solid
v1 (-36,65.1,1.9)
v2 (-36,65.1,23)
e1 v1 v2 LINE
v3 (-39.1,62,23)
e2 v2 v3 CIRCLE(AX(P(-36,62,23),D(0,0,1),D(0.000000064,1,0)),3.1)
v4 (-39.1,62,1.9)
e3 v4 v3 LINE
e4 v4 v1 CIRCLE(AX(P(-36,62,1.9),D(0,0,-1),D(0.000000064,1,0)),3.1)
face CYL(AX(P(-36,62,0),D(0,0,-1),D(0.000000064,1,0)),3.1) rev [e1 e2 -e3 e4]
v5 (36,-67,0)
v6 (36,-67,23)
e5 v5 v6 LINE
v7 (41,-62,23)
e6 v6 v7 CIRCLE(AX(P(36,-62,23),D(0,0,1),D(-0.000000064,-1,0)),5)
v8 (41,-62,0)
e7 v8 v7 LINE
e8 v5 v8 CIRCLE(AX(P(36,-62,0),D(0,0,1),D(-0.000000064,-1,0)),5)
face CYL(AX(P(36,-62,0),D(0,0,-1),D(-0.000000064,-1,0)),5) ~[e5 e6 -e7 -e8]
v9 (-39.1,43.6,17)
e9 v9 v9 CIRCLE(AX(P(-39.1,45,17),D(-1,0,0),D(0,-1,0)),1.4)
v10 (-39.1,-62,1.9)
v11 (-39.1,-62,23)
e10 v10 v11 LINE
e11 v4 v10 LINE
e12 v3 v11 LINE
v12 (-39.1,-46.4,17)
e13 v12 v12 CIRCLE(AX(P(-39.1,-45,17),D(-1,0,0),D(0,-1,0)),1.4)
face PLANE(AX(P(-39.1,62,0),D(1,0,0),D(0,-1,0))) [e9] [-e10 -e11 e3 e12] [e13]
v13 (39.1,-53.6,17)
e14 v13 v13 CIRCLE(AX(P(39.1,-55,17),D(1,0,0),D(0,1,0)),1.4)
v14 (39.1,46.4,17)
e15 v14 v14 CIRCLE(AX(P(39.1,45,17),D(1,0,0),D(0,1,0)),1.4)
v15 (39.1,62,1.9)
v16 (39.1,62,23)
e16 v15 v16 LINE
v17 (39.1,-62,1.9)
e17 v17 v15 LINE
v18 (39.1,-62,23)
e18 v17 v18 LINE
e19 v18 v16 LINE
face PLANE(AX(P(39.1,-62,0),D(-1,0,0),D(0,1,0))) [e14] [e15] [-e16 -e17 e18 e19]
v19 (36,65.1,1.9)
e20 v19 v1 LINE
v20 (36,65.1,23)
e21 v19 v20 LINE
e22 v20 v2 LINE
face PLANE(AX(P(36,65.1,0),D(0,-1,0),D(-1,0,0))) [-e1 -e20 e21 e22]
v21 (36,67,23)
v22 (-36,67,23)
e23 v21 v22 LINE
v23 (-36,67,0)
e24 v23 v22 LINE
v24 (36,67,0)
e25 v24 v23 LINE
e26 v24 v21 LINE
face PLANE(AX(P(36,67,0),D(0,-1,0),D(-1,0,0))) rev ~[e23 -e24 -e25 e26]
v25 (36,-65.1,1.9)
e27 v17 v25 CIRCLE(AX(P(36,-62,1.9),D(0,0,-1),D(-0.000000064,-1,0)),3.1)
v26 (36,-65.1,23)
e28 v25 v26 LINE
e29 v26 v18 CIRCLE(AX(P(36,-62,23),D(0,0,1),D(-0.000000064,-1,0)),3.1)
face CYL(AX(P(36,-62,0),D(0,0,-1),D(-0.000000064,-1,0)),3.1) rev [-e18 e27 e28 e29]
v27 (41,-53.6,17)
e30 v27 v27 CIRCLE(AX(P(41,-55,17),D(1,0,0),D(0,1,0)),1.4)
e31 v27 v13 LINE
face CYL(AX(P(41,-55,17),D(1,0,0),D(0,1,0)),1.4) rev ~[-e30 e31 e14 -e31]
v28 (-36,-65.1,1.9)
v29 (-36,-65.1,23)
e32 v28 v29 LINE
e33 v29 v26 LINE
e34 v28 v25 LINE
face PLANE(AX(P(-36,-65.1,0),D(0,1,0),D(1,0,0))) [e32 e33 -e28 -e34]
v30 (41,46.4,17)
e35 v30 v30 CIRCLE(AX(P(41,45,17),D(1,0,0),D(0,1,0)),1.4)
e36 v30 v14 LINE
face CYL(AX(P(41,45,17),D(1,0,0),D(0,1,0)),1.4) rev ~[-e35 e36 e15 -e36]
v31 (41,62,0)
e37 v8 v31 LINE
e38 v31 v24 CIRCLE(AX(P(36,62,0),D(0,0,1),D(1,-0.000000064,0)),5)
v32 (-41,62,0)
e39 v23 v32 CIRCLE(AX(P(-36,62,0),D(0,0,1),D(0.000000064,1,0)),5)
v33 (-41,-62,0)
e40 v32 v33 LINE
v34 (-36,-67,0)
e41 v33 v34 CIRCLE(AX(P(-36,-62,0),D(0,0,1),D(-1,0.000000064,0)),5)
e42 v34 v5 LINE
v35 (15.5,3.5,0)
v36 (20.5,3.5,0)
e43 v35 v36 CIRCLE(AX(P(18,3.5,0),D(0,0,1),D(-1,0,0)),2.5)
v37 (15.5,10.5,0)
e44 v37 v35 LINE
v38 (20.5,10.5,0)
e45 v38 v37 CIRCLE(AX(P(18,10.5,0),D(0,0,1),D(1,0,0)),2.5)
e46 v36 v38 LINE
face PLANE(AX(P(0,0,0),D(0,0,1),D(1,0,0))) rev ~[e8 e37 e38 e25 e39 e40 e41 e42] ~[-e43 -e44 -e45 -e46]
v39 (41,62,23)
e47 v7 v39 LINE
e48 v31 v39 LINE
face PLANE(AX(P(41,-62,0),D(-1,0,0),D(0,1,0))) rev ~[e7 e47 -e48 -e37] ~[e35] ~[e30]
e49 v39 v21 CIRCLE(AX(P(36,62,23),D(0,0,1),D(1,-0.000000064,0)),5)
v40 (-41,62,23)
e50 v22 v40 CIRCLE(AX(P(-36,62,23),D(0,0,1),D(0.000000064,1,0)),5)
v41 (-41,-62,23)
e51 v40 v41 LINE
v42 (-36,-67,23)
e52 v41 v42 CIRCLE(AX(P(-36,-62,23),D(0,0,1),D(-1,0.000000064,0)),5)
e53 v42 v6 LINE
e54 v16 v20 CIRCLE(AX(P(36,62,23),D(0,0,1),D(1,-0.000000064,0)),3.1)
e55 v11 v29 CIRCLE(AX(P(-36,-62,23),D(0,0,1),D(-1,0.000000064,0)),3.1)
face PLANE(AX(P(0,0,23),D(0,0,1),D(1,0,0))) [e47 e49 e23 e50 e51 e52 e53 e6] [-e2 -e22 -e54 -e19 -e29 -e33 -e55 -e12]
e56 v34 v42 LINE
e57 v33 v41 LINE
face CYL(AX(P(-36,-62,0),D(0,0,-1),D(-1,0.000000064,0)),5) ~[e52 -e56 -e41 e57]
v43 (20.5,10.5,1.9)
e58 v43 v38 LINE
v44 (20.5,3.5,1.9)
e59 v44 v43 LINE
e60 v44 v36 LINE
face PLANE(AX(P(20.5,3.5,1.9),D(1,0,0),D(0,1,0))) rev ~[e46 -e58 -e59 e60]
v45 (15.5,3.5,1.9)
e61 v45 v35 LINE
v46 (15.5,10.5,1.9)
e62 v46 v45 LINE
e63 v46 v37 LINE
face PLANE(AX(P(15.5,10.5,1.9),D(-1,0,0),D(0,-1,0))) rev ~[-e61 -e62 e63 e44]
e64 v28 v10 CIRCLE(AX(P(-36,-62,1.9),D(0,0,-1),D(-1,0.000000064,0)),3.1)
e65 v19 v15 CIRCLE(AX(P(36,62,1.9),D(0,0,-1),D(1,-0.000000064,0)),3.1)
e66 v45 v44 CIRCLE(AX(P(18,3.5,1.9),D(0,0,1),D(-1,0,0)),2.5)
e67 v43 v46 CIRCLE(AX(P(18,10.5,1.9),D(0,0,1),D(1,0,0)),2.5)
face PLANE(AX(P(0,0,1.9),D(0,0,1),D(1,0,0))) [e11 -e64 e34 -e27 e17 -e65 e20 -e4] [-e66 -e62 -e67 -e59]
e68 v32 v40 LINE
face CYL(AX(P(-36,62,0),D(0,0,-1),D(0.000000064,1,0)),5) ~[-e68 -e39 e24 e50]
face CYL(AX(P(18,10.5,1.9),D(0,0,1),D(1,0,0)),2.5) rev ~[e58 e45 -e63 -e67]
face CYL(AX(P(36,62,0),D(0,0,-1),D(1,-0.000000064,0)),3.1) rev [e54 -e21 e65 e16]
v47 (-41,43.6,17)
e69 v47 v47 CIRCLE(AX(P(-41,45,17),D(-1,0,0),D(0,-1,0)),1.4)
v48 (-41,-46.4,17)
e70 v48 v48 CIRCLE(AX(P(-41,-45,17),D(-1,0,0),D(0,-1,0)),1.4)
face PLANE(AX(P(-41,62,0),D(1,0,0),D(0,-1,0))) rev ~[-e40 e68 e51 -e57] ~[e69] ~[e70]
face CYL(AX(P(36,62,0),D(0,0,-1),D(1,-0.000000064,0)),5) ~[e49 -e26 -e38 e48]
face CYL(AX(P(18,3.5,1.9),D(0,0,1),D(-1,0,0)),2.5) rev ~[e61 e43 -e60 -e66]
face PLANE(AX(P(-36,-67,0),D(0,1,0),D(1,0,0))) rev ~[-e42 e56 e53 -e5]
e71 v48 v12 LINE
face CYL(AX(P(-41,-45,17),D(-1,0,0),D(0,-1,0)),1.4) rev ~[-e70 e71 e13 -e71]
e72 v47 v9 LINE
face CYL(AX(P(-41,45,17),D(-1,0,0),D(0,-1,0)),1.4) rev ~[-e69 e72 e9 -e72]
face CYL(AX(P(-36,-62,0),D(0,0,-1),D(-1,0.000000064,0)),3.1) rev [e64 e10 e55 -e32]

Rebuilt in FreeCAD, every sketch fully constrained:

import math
import FreeCAD as App
import Part
import Sketcher


def faces_at(feature, points):
    """Names of the faces that lie closest to the given points."""
    faces = feature.Shape.Faces
    near = lambda p: min(range(len(faces)), key=lambda i: faces[i].distToShape(Part.Vertex(*p))[0])
    return sorted({f"Face{near(p) + 1}" for p in points})

doc = App.newDocument("Part")
params = doc.addObject("Spreadsheet::Sheet", "Params")
for row, (alias, value) in enumerate([
    ("sketch1_radius", "5 mm"),
    ("sketch1_width", "72 mm"),
    ("sketch1_height", "124 mm"),
    ("pad1_length", "23 mm"),
    ("thickness_wall", "1.9 mm"),
    ("sketch2_radius", "2.5 mm"),
    ("sketch2_height", "7 mm"),
    ("pocket1_length", "2 mm"),
    ("sketch3_diameter", "2.8 mm"),
    ("pocket2_length", "2 mm"),
    ("sketch4_diameter", "2.8 mm"),
    ("pocket3_length", "2 mm"),
], start=1):
    params.set(f"A{row}", alias)
    params.set(f"B{row}", "=" + value)
    params.setAlias(f"B{row}", alias)

body = doc.addObject("PartDesign::Body", "Body")

sketch1 = body.newObject("Sketcher::SketchObject", "Sketch")
sketch1.AttachmentSupport = (doc.getObject("XY_Plane"), [""])
sketch1.MapMode = "FlatFace"
sketch1.addGeometry(Part.LineSegment(App.Vector(-36, -67, 0), App.Vector(36, -67, 0)), False)
sketch1.addGeometry(Part.ArcOfCircle(Part.Circle(App.Vector(36, -62, 0), App.Vector(0, 0, 1), 5), math.radians(-90), math.radians(0)), False)
sketch1.addGeometry(Part.LineSegment(App.Vector(41, -62, 0), App.Vector(41, 62, 0)), False)
sketch1.addGeometry(Part.ArcOfCircle(Part.Circle(App.Vector(36, 62, 0), App.Vector(0, 0, 1), 5), math.radians(0), math.radians(90)), False)
sketch1.addGeometry(Part.LineSegment(App.Vector(36, 67, 0), App.Vector(-36, 67, 0)), False)
sketch1.addGeometry(Part.ArcOfCircle(Part.Circle(App.Vector(-36, 62, 0), App.Vector(0, 0, 1), 5), math.radians(90), math.radians(180)), False)
sketch1.addGeometry(Part.LineSegment(App.Vector(-41, 62, 0), App.Vector(-41, -62, 0)), False)
sketch1.addGeometry(Part.ArcOfCircle(Part.Circle(App.Vector(-36, -62, 0), App.Vector(0, 0, 1), 5), math.radians(180), math.radians(270)), False)
sketch1.addConstraint(Sketcher.Constraint("Tangent", 0, 2, 1, 1))
sketch1.addConstraint(Sketcher.Constraint("Tangent", 1, 2, 2, 1))
sketch1.addConstraint(Sketcher.Constraint("Tangent", 2, 2, 3, 1))
sketch1.addConstraint(Sketcher.Constraint("Tangent", 3, 2, 4, 1))
sketch1.addConstraint(Sketcher.Constraint("Tangent", 4, 2, 5, 1))
sketch1.addConstraint(Sketcher.Constraint("Tangent", 5, 2, 6, 1))
sketch1.addConstraint(Sketcher.Constraint("Tangent", 6, 2, 7, 1))
sketch1.addConstraint(Sketcher.Constraint("Tangent", 7, 2, 0, 1))
sketch1.addConstraint(Sketcher.Constraint("Horizontal", 0))
sketch1.addConstraint(Sketcher.Constraint("Vertical", 2))
sketch1.addConstraint(Sketcher.Constraint("Horizontal", 4))
sketch1.addConstraint(Sketcher.Constraint("Vertical", 6))
sketch1.addConstraint(Sketcher.Constraint("Equal", 1, 3))
sketch1.addConstraint(Sketcher.Constraint("Equal", 3, 5))
sketch1.addConstraint(Sketcher.Constraint("Equal", 5, 7))
sketch1.addConstraint(Sketcher.Constraint("Symmetric", 1, 3, 5, 3, -1, 1))
sketch1.addConstraint(Sketcher.Constraint("Radius", 1, 5.0))
sketch1.addConstraint(Sketcher.Constraint("DistanceX", 0, 1, 0, 2, 72.0))
sketch1.addConstraint(Sketcher.Constraint("DistanceY", 2, 1, 2, 2, 124.0))
sketch1.setExpression("Constraints[16]", "Params.sketch1_radius")
sketch1.setExpression("Constraints[17]", "Params.sketch1_width")
sketch1.setExpression("Constraints[18]", "Params.sketch1_height")
pad1 = body.newObject("PartDesign::Pad", "Pad")
pad1.Profile = sketch1
pad1.setExpression("Length", "Params.pad1_length")
doc.recompute()

thickness = body.newObject("PartDesign::Thickness", "Thickness")
thickness.Base = (pad1, faces_at(pad1, [(0, 0, 23)]))
thickness.setExpression("Value", "Params.thickness_wall")
thickness.Reversed = True
thickness.Join = "Arc"

sketch2 = body.newObject("Sketcher::SketchObject", "Sketch001")
sketch2.AttachmentSupport = (doc.getObject("XY_Plane"), [""])
sketch2.MapMode = "FlatFace"
sketch2.AttachmentOffset = App.Placement(App.Vector(0, 0, 1.9), App.Rotation())
sketch2.addGeometry(Part.ArcOfCircle(Part.Circle(App.Vector(18, 3.5, 0), App.Vector(0, 0, 1), 2.5), math.radians(180), math.radians(360)), False)
sketch2.addGeometry(Part.LineSegment(App.Vector(20.5, 3.5, 0), App.Vector(20.5, 10.5, 0)), False)
sketch2.addGeometry(Part.ArcOfCircle(Part.Circle(App.Vector(18, 10.5, 0), App.Vector(0, 0, 1), 2.5), math.radians(0), math.radians(180)), False)
sketch2.addGeometry(Part.LineSegment(App.Vector(15.5, 10.5, 0), App.Vector(15.5, 3.5, 0)), False)
sketch2.addConstraint(Sketcher.Constraint("Tangent", 0, 2, 1, 1))
sketch2.addConstraint(Sketcher.Constraint("Tangent", 1, 2, 2, 1))
sketch2.addConstraint(Sketcher.Constraint("Tangent", 2, 2, 3, 1))
sketch2.addConstraint(Sketcher.Constraint("Tangent", 3, 2, 0, 1))
sketch2.addConstraint(Sketcher.Constraint("Vertical", 1))
sketch2.addConstraint(Sketcher.Constraint("Vertical", 3))
sketch2.addConstraint(Sketcher.Constraint("Radius", 0, 2.5))
sketch2.addConstraint(Sketcher.Constraint("DistanceY", 1, 1, 1, 2, 7.0))
sketch2.addConstraint(Sketcher.Constraint("DistanceX", -1, 1, 0, 3, 18.0))
sketch2.addConstraint(Sketcher.Constraint("DistanceY", -1, 1, 0, 3, 3.5))
sketch2.setExpression("Constraints[6]", "Params.sketch2_radius")
sketch2.setExpression("Constraints[7]", "Params.sketch2_height")
pocket1 = body.newObject("PartDesign::Pocket", "Pocket")
pocket1.Profile = sketch2
pocket1.setExpression("Length", "Params.pocket1_length")

sketch3 = body.newObject("Sketcher::SketchObject", "Sketch002")
sketch3.AttachmentSupport = (doc.getObject("YZ_Plane"), [""])
sketch3.MapMode = "FlatFace"
sketch3.AttachmentOffset = App.Placement(App.Vector(0, 0, -41), App.Rotation())
sketch3.addGeometry(Part.Circle(App.Vector(45, 17, 0), App.Vector(0, 0, 1), 1.4), False)
sketch3.addGeometry(Part.Circle(App.Vector(-45, 17, 0), App.Vector(0, 0, 1), 1.4), False)
sketch3.addConstraint(Sketcher.Constraint("Equal", 0, 1))
sketch3.addConstraint(Sketcher.Constraint("Symmetric", 0, 3, 1, 3, -2))
sketch3.addConstraint(Sketcher.Constraint("Diameter", 0, 2.8))
sketch3.addConstraint(Sketcher.Constraint("DistanceX", -1, 1, 0, 3, 45.0))
sketch3.addConstraint(Sketcher.Constraint("DistanceY", -1, 1, 0, 3, 17.0))
sketch3.setExpression("Constraints[2]", "Params.sketch3_diameter")
pocket2 = body.newObject("PartDesign::Pocket", "Pocket001")
pocket2.Profile = sketch3
pocket2.setExpression("Length", "Params.pocket2_length")
pocket2.Reversed = True

sketch4 = body.newObject("Sketcher::SketchObject", "Sketch003")
sketch4.AttachmentSupport = (doc.getObject("YZ_Plane"), [""])
sketch4.MapMode = "FlatFace"
sketch4.AttachmentOffset = App.Placement(App.Vector(0, 0, 41), App.Rotation())
sketch4.addGeometry(Part.Circle(App.Vector(-55, 17, 0), App.Vector(0, 0, 1), 1.4), False)
sketch4.addGeometry(Part.Circle(App.Vector(45, 17, 0), App.Vector(0, 0, 1), 1.4), False)
sketch4.addConstraint(Sketcher.Constraint("Equal", 0, 1))
sketch4.addConstraint(Sketcher.Constraint("Horizontal", 0, 3, 1, 3))
sketch4.addConstraint(Sketcher.Constraint("Diameter", 0, 2.8))
sketch4.addConstraint(Sketcher.Constraint("DistanceX", 0, 3, -1, 1, 55.0))
sketch4.addConstraint(Sketcher.Constraint("DistanceY", -1, 1, 0, 3, 17.0))
sketch4.addConstraint(Sketcher.Constraint("DistanceX", -1, 1, 1, 3, 45.0))
sketch4.setExpression("Constraints[2]", "Params.sketch4_diameter")
pocket3 = body.newObject("PartDesign::Pocket", "Pocket002")
pocket3.Profile = sketch4
pocket3.setExpression("Length", "Params.pocket3_length")

doc.recompute()
